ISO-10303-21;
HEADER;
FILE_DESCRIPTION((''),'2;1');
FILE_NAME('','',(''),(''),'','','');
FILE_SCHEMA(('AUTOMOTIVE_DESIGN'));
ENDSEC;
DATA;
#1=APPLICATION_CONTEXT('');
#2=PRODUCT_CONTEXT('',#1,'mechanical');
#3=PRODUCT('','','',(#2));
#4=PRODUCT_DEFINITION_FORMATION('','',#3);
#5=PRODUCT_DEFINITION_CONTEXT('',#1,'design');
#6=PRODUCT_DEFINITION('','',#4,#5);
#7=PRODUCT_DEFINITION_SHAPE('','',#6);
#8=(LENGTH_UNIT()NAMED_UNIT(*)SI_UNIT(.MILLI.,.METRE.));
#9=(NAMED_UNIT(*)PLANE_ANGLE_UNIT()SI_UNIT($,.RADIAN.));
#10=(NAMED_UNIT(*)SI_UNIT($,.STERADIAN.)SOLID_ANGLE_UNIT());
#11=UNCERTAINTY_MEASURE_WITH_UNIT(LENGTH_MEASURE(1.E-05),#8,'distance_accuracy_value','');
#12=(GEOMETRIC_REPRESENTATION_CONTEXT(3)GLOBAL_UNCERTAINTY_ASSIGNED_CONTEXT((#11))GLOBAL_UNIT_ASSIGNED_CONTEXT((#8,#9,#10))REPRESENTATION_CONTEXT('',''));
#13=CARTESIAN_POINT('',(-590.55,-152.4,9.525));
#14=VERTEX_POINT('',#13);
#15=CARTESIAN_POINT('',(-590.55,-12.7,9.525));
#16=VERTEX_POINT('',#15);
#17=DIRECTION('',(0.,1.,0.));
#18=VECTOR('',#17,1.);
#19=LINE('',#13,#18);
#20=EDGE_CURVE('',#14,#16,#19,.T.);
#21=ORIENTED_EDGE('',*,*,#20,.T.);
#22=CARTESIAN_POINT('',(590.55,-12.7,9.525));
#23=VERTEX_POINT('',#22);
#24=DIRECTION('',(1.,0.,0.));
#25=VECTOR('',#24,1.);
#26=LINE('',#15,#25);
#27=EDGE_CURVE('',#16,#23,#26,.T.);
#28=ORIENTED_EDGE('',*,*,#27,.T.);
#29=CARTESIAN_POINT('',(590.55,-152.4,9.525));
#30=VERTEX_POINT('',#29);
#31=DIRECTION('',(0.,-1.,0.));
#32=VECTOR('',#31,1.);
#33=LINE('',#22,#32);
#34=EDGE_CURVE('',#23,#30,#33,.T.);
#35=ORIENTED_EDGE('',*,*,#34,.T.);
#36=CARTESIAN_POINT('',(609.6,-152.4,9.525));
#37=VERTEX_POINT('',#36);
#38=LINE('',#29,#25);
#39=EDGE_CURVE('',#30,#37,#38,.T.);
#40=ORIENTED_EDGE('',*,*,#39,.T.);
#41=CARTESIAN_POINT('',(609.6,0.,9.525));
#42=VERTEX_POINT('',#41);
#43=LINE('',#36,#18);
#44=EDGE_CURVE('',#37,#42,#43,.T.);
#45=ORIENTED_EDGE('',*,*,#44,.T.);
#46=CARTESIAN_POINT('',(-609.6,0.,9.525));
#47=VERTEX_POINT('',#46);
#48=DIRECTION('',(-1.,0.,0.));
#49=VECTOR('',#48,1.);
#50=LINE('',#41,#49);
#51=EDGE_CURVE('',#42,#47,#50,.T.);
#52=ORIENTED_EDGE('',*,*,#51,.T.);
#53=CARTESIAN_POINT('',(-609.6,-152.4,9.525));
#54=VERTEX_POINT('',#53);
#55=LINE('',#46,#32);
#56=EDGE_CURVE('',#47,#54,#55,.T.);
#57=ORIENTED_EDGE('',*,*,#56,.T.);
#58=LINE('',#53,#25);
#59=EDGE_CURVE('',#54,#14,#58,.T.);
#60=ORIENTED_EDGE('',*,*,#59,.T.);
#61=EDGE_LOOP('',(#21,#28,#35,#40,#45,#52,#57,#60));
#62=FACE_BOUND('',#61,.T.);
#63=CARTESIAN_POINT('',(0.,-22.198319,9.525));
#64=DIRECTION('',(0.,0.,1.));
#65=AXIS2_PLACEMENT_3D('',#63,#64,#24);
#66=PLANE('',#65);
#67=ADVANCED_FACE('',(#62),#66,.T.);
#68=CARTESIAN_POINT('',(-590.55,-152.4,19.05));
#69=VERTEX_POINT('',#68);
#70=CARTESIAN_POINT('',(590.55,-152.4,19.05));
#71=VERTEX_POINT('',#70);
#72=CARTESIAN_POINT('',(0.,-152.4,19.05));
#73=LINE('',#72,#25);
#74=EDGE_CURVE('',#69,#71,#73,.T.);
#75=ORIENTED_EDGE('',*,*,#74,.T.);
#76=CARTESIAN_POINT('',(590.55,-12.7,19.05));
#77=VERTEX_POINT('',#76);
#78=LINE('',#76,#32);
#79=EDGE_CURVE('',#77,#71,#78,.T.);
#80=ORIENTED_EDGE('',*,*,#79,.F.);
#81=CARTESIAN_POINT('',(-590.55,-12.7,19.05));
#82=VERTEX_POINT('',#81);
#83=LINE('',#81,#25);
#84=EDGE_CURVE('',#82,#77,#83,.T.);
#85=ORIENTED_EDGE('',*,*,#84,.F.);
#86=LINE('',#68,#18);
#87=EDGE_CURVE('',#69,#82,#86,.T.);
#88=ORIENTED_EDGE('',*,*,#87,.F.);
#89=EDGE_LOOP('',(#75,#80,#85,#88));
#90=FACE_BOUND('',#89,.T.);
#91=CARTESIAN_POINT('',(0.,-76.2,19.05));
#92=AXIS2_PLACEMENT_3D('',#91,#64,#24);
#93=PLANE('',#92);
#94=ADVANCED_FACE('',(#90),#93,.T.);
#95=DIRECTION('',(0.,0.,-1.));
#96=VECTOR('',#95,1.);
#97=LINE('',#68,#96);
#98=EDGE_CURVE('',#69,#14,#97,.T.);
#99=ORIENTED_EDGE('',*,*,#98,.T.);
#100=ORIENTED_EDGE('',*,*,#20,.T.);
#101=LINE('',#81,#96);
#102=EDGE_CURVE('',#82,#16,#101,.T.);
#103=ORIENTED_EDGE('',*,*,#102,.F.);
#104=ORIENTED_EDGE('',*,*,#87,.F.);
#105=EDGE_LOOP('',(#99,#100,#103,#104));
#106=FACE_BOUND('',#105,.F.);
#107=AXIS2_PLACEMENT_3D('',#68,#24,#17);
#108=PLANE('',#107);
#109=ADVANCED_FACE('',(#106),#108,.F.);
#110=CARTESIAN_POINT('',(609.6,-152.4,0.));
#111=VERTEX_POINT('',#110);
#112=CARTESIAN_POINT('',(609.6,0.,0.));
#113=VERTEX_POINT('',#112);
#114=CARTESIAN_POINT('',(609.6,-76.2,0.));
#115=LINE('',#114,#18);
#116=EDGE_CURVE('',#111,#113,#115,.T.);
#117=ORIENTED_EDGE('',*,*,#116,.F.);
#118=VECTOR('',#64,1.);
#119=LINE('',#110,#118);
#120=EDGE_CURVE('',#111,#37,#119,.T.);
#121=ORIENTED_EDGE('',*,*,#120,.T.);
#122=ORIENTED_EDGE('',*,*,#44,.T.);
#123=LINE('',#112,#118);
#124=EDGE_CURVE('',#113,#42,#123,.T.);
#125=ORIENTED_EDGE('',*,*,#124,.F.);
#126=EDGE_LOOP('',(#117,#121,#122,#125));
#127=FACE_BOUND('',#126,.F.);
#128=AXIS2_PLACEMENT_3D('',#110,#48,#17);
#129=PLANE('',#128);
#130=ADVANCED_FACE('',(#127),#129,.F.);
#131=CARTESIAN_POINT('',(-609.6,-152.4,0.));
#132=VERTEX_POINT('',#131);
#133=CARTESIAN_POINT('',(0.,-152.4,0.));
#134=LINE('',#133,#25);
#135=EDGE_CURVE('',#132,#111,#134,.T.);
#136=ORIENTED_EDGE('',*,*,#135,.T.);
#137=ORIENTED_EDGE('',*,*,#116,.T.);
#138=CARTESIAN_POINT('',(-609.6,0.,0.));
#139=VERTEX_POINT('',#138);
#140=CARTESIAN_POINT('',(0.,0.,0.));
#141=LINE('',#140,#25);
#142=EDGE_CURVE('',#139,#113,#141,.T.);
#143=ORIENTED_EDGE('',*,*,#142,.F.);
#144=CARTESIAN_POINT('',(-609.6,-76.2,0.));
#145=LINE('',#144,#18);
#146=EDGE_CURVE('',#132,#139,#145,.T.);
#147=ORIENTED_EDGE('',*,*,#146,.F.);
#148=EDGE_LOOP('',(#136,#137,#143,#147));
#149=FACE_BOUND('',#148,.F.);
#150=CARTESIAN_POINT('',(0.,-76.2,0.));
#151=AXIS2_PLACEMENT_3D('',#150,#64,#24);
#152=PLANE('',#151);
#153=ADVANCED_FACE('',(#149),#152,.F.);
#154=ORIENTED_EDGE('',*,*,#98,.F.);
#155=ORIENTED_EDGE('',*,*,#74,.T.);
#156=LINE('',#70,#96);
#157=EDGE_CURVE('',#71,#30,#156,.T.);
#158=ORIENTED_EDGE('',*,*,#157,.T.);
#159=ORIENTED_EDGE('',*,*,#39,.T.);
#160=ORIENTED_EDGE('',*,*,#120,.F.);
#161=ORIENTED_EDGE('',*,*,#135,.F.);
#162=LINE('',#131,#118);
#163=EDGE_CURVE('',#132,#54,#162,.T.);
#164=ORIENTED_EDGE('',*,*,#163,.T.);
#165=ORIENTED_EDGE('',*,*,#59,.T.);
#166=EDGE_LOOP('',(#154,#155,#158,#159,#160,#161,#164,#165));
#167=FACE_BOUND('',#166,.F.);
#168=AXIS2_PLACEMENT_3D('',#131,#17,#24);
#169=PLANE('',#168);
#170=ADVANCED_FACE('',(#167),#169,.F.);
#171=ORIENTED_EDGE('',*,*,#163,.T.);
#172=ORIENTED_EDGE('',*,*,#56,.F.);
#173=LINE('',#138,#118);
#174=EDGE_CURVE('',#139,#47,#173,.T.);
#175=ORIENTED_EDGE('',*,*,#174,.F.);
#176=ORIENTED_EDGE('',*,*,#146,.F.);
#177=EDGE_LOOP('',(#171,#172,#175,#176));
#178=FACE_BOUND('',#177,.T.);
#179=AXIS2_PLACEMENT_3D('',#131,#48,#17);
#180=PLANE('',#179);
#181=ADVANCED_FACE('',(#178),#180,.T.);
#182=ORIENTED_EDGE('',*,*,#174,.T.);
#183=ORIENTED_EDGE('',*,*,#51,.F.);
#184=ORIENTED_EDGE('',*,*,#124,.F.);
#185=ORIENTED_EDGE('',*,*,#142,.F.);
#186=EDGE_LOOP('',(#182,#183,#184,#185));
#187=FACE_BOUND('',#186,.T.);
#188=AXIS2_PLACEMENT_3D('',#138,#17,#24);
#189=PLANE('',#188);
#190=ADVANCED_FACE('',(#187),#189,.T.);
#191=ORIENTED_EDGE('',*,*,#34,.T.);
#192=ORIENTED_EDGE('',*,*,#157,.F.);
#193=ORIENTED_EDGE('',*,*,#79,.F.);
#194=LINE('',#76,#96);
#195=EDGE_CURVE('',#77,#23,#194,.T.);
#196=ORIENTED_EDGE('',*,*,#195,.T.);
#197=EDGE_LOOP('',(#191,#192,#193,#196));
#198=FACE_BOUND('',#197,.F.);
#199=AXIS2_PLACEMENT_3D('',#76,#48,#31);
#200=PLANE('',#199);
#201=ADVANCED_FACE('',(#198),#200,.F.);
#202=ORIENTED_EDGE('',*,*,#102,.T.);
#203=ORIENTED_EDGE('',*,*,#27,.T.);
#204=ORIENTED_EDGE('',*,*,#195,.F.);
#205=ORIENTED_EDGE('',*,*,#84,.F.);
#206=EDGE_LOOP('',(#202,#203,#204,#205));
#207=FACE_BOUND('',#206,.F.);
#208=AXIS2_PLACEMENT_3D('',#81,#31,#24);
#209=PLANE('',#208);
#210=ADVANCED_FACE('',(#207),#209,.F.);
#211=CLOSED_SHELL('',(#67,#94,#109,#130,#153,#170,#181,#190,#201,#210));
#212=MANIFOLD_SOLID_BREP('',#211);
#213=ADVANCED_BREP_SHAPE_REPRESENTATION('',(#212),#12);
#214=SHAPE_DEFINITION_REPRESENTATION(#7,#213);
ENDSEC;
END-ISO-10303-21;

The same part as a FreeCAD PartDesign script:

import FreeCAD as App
import Part
import Sketcher
Q = App.Units.Quantity


def add_polygon(sketch, points):
    """Adds a closed chain of lines whose ends are joined by coincident constraints."""
    first, n = sketch.GeometryCount, len(points)
    for a, b in zip(points, points[1:] + points[:1]):
        sketch.addGeometry(Part.LineSegment(App.Vector(*a, 0), App.Vector(*b, 0)), False)
    for i in range(n):
        sketch.addConstraint(Sketcher.Constraint("Coincident", first + i, 2, first + (i + 1) % n, 1))

doc = App.newDocument("Part")
body = doc.addObject("PartDesign::Body", "Body")

# Sketch on XY plane
sketch1 = body.newObject("Sketcher::SketchObject", "Sketch")
sketch1.AttachmentSupport = (doc.getObject("XY_Plane"), [""])
sketch1.MapMode = "FlatFace"
add_polygon(sketch1, [(-609.6, 0), (-609.6, -152.4), (609.6, -152.4), (609.6, 0)])  # lines 0-3
sketch1.addConstraint(Sketcher.Constraint("Vertical", 0))
sketch1.addConstraint(Sketcher.Constraint("Horizontal", 1))
sketch1.addConstraint(Sketcher.Constraint("Vertical", 2))
sketch1.addConstraint(Sketcher.Constraint("Horizontal", 3))
sketch1.addConstraint(Sketcher.Constraint("Symmetric", 2, 2, 3, 2, -1, 1))
sketch1.addConstraint(Sketcher.Constraint("DistanceX", 1, 1, 1, 2, Q("48 in")))
sketch1.addConstraint(Sketcher.Constraint("DistanceY", 0, 2, 0, 1, Q("6 in")))
pad1 = body.newObject("PartDesign::Pad", "Pad")
pad1.Profile = sketch1
pad1.Length = Q("0.75 in")

# Sketch on XY plane
sketch2 = body.newObject("Sketcher::SketchObject", "Sketch001")
sketch2.AttachmentSupport = (doc.getObject("XY_Plane"), [""])
sketch2.MapMode = "FlatFace"
sketch2.AttachmentOffset = App.Placement(App.Vector(0, 0, 0.75 * 25.4), App.Rotation())
add_polygon(sketch2, [(-609.6, 0), (-609.6, -152.4), (-590.55, -152.4), (-590.55, -12.7), (590.55, -12.7), (590.55, -152.4), (609.6, -152.4), (609.6, 0)])  # lines 0-7
sketch2.addConstraint(Sketcher.Constraint("Vertical", 0))
sketch2.addConstraint(Sketcher.Constraint("Horizontal", 1))
sketch2.addConstraint(Sketcher.Constraint("Vertical", 2))
sketch2.addConstraint(Sketcher.Constraint("Horizontal", 3))
sketch2.addConstraint(Sketcher.Constraint("Vertical", 4))
sketch2.addConstraint(Sketcher.Constraint("Horizontal", 5))
sketch2.addConstraint(Sketcher.Constraint("Vertical", 6))
sketch2.addConstraint(Sketcher.Constraint("Horizontal", 7))
sketch2.addConstraint(Sketcher.Constraint("Symmetric", 6, 2, 7, 2, -1, 1))
sketch2.addConstraint(Sketcher.Constraint("Symmetric", 1, 2, 4, 2, -2))
sketch2.addConstraint(Sketcher.Constraint("DistanceX", 7, 2, 7, 1, Q("48 in")))
sketch2.addConstraint(Sketcher.Constraint("DistanceY", 0, 2, 0, 1, Q("6 in")))
sketch2.addConstraint(Sketcher.Constraint("DistanceX", 3, 1, 3, 2, Q("46.5 in")))
sketch2.addConstraint(Sketcher.Constraint("DistanceY", 2, 1, 2, 2, Q("5.5 in")))
pocket1 = body.newObject("PartDesign::Pocket", "Pocket")
pocket1.Profile = sketch2
pocket1.Length = Q("0.375 in")

doc.recompute()
